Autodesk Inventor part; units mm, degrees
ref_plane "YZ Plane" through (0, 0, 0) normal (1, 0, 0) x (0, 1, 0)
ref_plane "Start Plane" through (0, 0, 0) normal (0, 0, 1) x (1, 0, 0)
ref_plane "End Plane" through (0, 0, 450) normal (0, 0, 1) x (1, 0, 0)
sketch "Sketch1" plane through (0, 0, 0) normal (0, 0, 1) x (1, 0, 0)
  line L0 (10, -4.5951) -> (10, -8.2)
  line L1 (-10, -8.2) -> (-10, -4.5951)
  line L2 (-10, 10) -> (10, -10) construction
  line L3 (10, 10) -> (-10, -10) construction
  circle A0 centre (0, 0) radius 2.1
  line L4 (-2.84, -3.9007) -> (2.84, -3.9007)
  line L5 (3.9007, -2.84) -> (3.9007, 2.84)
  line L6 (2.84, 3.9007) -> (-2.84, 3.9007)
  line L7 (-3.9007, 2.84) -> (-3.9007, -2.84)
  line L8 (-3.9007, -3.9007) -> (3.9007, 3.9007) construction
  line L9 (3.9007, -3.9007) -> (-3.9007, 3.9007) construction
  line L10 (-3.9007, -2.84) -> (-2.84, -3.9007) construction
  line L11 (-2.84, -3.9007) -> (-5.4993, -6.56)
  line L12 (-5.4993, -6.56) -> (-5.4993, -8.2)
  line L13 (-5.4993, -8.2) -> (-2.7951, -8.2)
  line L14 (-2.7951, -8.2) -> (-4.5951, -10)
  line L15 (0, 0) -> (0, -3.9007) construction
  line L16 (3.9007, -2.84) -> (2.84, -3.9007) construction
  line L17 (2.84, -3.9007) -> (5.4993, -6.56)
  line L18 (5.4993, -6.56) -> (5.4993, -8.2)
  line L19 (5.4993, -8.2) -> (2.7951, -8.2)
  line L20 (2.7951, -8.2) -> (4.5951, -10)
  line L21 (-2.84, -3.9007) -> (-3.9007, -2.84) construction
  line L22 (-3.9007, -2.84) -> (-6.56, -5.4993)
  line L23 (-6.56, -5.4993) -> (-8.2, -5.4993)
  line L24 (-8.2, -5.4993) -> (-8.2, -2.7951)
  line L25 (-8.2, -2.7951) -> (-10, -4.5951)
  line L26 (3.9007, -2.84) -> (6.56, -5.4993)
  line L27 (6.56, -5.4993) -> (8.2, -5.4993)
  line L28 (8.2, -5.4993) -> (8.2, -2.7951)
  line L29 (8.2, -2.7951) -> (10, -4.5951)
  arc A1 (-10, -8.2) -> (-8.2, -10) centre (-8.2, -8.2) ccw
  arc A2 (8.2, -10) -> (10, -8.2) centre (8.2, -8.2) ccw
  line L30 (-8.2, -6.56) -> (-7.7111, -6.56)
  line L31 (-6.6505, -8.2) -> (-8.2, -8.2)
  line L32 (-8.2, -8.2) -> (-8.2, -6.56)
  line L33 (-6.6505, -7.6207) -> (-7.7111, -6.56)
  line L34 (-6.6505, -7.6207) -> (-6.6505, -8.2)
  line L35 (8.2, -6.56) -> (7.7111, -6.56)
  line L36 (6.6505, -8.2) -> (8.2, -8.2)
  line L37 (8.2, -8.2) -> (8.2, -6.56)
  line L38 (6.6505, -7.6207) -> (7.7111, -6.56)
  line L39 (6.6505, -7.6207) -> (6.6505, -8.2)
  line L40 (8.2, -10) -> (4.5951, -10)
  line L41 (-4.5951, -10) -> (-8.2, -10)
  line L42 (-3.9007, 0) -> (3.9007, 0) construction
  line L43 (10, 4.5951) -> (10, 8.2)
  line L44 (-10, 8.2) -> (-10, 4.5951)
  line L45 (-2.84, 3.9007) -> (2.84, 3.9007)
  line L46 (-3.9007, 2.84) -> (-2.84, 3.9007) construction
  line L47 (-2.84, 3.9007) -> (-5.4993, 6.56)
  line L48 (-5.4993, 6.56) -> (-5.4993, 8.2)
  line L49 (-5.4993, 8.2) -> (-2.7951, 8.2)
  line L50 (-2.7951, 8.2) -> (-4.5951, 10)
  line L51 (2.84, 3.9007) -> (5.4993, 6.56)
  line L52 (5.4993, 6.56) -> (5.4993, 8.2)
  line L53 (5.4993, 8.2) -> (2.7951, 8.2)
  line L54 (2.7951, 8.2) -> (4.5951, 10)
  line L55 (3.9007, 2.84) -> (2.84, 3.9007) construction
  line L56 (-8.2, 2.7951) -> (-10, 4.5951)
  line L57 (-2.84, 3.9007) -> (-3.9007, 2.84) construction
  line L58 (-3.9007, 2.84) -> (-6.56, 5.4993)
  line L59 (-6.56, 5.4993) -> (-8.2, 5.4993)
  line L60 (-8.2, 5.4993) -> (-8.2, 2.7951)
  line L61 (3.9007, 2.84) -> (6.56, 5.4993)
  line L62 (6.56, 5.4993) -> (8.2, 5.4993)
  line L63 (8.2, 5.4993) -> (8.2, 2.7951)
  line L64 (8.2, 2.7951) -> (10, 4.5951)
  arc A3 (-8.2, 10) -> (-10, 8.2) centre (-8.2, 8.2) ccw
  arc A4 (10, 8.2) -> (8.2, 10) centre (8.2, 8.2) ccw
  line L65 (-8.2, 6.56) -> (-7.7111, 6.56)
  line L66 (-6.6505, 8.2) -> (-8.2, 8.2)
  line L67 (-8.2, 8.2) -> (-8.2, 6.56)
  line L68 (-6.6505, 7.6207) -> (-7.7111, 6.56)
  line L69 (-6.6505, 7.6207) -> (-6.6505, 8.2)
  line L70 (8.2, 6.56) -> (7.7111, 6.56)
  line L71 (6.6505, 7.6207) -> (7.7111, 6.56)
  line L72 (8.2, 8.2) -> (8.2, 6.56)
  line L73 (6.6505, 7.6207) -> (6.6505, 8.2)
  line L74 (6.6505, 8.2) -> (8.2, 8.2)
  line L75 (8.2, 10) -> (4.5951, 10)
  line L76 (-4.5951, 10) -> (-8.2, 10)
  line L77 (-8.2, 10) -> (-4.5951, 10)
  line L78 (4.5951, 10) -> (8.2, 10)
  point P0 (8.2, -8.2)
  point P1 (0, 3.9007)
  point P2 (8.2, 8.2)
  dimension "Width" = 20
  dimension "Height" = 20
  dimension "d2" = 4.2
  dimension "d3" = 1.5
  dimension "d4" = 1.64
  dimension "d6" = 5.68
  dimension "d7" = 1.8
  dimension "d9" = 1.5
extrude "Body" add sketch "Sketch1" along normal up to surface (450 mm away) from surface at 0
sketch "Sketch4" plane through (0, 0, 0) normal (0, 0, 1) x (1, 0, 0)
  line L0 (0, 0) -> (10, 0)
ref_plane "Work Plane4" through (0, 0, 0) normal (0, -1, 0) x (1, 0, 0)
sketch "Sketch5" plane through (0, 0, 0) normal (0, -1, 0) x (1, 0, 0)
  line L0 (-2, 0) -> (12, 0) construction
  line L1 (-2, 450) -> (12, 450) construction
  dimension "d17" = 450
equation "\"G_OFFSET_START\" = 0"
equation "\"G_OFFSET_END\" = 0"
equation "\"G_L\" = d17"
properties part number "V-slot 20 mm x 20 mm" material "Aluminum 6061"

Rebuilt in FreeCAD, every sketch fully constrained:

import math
import FreeCAD as App
import Part
import Sketcher
Q = App.Units.Quantity


def add_polygon(sketch, points):
    """Adds a closed chain of lines whose ends are joined by coincident constraints."""
    first, n = sketch.GeometryCount, len(points)
    for a, b in zip(points, points[1:] + points[:1]):
        sketch.addGeometry(Part.LineSegment(App.Vector(*a, 0), App.Vector(*b, 0)), False)
    for i in range(n):
        sketch.addConstraint(Sketcher.Constraint("Coincident", first + i, 2, first + (i + 1) % n, 1))

doc = App.newDocument("Part")
body = doc.addObject("PartDesign::Body", "Body")

sketch1 = body.newObject("Sketcher::SketchObject", "Sketch")
sketch1.AttachmentSupport = (doc.getObject("XY_Plane"), [""])
sketch1.MapMode = "FlatFace"
sketch1.addGeometry(Part.LineSegment(App.Vector(10, -8.2, 0), App.Vector(10, -4.6, 0)), False)
sketch1.addGeometry(Part.LineSegment(App.Vector(10, -4.6, 0), App.Vector(8.2, -2.8, 0)), False)
sketch1.addGeometry(Part.LineSegment(App.Vector(8.2, -2.8, 0), App.Vector(8.2, -5.5, 0)), False)
sketch1.addGeometry(Part.LineSegment(App.Vector(8.2, -5.5, 0), App.Vector(6.56, -5.5, 0)), False)
sketch1.addGeometry(Part.LineSegment(App.Vector(6.56, -5.5, 0), App.Vector(3.9, -2.84, 0)), False)
sketch1.addGeometry(Part.LineSegment(App.Vector(3.9, -2.84, 0), App.Vector(3.9, 2.84, 0)), False)
sketch1.addGeometry(Part.LineSegment(App.Vector(3.9, 2.84, 0), App.Vector(6.56, 5.5, 0)), False)
sketch1.addGeometry(Part.LineSegment(App.Vector(6.56, 5.5, 0), App.Vector(8.2, 5.5, 0)), False)
sketch1.addGeometry(Part.LineSegment(App.Vector(8.2, 5.5, 0), App.Vector(8.2, 2.8, 0)), False)
sketch1.addGeometry(Part.LineSegment(App.Vector(8.2, 2.8, 0), App.Vector(10, 4.6, 0)), False)
sketch1.addGeometry(Part.LineSegment(App.Vector(10, 4.6, 0), App.Vector(10, 8.2, 0)), False)
sketch1.addGeometry(Part.ArcOfCircle(Part.Circle(App.Vector(8.2, 8.2, 0), App.Vector(0, 0, 1), 1.8), math.radians(0), math.radians(90)), False)
sketch1.addGeometry(Part.LineSegment(App.Vector(8.2, 10, 0), App.Vector(4.6, 10, 0)), False)
sketch1.addGeometry(Part.LineSegment(App.Vector(4.6, 10, 0), App.Vector(2.8, 8.2, 0)), False)
sketch1.addGeometry(Part.LineSegment(App.Vector(2.8, 8.2, 0), App.Vector(5.5, 8.2, 0)), False)
sketch1.addGeometry(Part.LineSegment(App.Vector(5.5, 8.2, 0), App.Vector(5.5, 6.56, 0)), False)
sketch1.addGeometry(Part.LineSegment(App.Vector(5.5, 6.56, 0), App.Vector(2.84, 3.9, 0)), False)
sketch1.addGeometry(Part.LineSegment(App.Vector(2.84, 3.9, 0), App.Vector(-2.84, 3.9, 0)), False)
sketch1.addGeometry(Part.LineSegment(App.Vector(-2.84, 3.9, 0), App.Vector(-5.5, 6.56, 0)), False)
sketch1.addGeometry(Part.LineSegment(App.Vector(-5.5, 6.56, 0), App.Vector(-5.5, 8.2, 0)), False)
sketch1.addGeometry(Part.LineSegment(App.Vector(-5.5, 8.2, 0), App.Vector(-2.8, 8.2, 0)), False)
sketch1.addGeometry(Part.LineSegment(App.Vector(-2.8, 8.2, 0), App.Vector(-4.6, 10, 0)), False)
sketch1.addGeometry(Part.LineSegment(App.Vector(-4.6, 10, 0), App.Vector(-8.2, 10, 0)), False)
sketch1.addGeometry(Part.ArcOfCircle(Part.Circle(App.Vector(-8.2, 8.2, 0), App.Vector(0, 0, 1), 1.8), math.radians(90), math.radians(180)), False)
sketch1.addGeometry(Part.LineSegment(App.Vector(-10, 8.2, 0), App.Vector(-10, 4.6, 0)), False)
sketch1.addGeometry(Part.LineSegment(App.Vector(-10, 4.6, 0), App.Vector(-8.2, 2.8, 0)), False)
sketch1.addGeometry(Part.LineSegment(App.Vector(-8.2, 2.8, 0), App.Vector(-8.2, 5.5, 0)), False)
sketch1.addGeometry(Part.LineSegment(App.Vector(-8.2, 5.5, 0), App.Vector(-6.56, 5.5, 0)), False)
sketch1.addGeometry(Part.LineSegment(App.Vector(-6.56, 5.5, 0), App.Vector(-3.9, 2.84, 0)), False)
sketch1.addGeometry(Part.LineSegment(App.Vector(-3.9, 2.84, 0), App.Vector(-3.9, -2.84, 0)), False)
sketch1.addGeometry(Part.LineSegment(App.Vector(-3.9, -2.84, 0), App.Vector(-6.56, -5.5, 0)), False)
sketch1.addGeometry(Part.LineSegment(App.Vector(-6.56, -5.5, 0), App.Vector(-8.2, -5.5, 0)), False)
sketch1.addGeometry(Part.LineSegment(App.Vector(-8.2, -5.5, 0), App.Vector(-8.2, -2.8, 0)), False)
sketch1.addGeometry(Part.LineSegment(App.Vector(-8.2, -2.8, 0), App.Vector(-10, -4.6, 0)), False)
sketch1.addGeometry(Part.LineSegment(App.Vector(-10, -4.6, 0), App.Vector(-10, -8.2, 0)), False)
sketch1.addGeometry(Part.ArcOfCircle(Part.Circle(App.Vector(-8.2, -8.2, 0), App.Vector(0, 0, 1), 1.8), math.radians(180), math.radians(270)), False)
sketch1.addGeometry(Part.LineSegment(App.Vector(-8.2, -10, 0), App.Vector(-4.6, -10, 0)), False)
sketch1.addGeometry(Part.LineSegment(App.Vector(-4.6, -10, 0), App.Vector(-2.8, -8.2, 0)), False)
sketch1.addGeometry(Part.LineSegment(App.Vector(-2.8, -8.2, 0), App.Vector(-5.5, -8.2, 0)), False)
sketch1.addGeometry(Part.LineSegment(App.Vector(-5.5, -8.2, 0), App.Vector(-5.5, -6.56, 0)), False)
sketch1.addGeometry(Part.LineSegment(App.Vector(-5.5, -6.56, 0), App.Vector(-2.84, -3.9, 0)), False)
sketch1.addGeometry(Part.LineSegment(App.Vector(-2.84, -3.9, 0), App.Vector(2.84, -3.9, 0)), False)
sketch1.addGeometry(Part.LineSegment(App.Vector(2.84, -3.9, 0), App.Vector(5.5, -6.56, 0)), False)
sketch1.addGeometry(Part.LineSegment(App.Vector(5.5, -6.56, 0), App.Vector(5.5, -8.2, 0)), False)
sketch1.addGeometry(Part.LineSegment(App.Vector(5.5, -8.2, 0), App.Vector(2.8, -8.2, 0)), False)
sketch1.addGeometry(Part.LineSegment(App.Vector(2.8, -8.2, 0), App.Vector(4.6, -10, 0)), False)
sketch1.addGeometry(Part.LineSegment(App.Vector(4.6, -10, 0), App.Vector(8.2, -10, 0)), False)
sketch1.addGeometry(Part.ArcOfCircle(Part.Circle(App.Vector(8.2, -8.2, 0), App.Vector(0, 0, 1), 1.8), math.radians(-90), math.radians(0)), False)
add_polygon(sketch1, [(-8.2, -8.2), (-8.2, -6.56), (-7.71, -6.56), (-6.65, -7.62), (-6.65, -8.2)])
add_polygon(sketch1, [(7.71, -6.56), (8.2, -6.56), (8.2, -8.2), (6.65, -8.2), (6.65, -7.62)])
add_polygon(sketch1, [(-7.71, 6.56), (-8.2, 6.56), (-8.2, 8.2), (-6.65, 8.2), (-6.65, 7.62)])
sketch1.addGeometry(Part.Circle(App.Vector(0, 0, 0), App.Vector(0, 0, 1), 2.1), False)
add_polygon(sketch1, [(8.2, 8.2), (8.2, 6.56), (7.71, 6.56), (6.65, 7.62), (6.65, 8.2)])
sketch1.addConstraint([
    Sketcher.Constraint("Coincident", 0, 2, 1, 1),
    Sketcher.Constraint("Coincident", 1, 2, 2, 1),
    Sketcher.Constraint("Coincident", 2, 2, 3, 1),
    Sketcher.Constraint("Coincident", 3, 2, 4, 1),
    Sketcher.Constraint("Coincident", 4, 2, 5, 1),
    Sketcher.Constraint("Coincident", 5, 2, 6, 1),
    Sketcher.Constraint("Coincident", 6, 2, 7, 1),
    Sketcher.Constraint("Coincident", 7, 2, 8, 1),
    Sketcher.Constraint("Coincident", 8, 2, 9, 1),
    Sketcher.Constraint("Coincident", 9, 2, 10, 1),
    Sketcher.Constraint("Tangent", 10, 2, 11, 1),
    Sketcher.Constraint("Tangent", 11, 2, 12, 1),
    Sketcher.Constraint("Coincident", 12, 2, 13, 1),
    Sketcher.Constraint("Coincident", 13, 2, 14, 1),
    Sketcher.Constraint("Coincident", 14, 2, 15, 1),
    Sketcher.Constraint("Coincident", 15, 2, 16, 1),
    Sketcher.Constraint("Coincident", 16, 2, 17, 1),
    Sketcher.Constraint("Coincident", 17, 2, 18, 1),
    Sketcher.Constraint("Coincident", 18, 2, 19, 1),
    Sketcher.Constraint("Coincident", 19, 2, 20, 1),
    Sketcher.Constraint("Coincident", 20, 2, 21, 1),
    Sketcher.Constraint("Coincident", 21, 2, 22, 1),
    Sketcher.Constraint("Tangent", 22, 2, 23, 1),
    Sketcher.Constraint("Tangent", 23, 2, 24, 1),
    Sketcher.Constraint("Coincident", 24, 2, 25, 1),
    Sketcher.Constraint("Coincident", 25, 2, 26, 1),
    Sketcher.Constraint("Coincident", 26, 2, 27, 1),
    Sketcher.Constraint("Coincident", 27, 2, 28, 1),
    Sketcher.Constraint("Coincident", 28, 2, 29, 1),
    Sketcher.Constraint("Coincident", 29, 2, 30, 1),
    Sketcher.Constraint("Coincident", 30, 2, 31, 1),
    Sketcher.Constraint("Coincident", 31, 2, 32, 1),
    Sketcher.Constraint("Coincident", 32, 2, 33, 1),
    Sketcher.Constraint("Coincident", 33, 2, 34, 1),
    Sketcher.Constraint("Tangent", 34, 2, 35, 1),
    Sketcher.Constraint("Tangent", 35, 2, 36, 1),
    Sketcher.Constraint("Coincident", 36, 2, 37, 1),
    Sketcher.Constraint("Coincident", 37, 2, 38, 1),
    Sketcher.Constraint("Coincident", 38, 2, 39, 1),
    Sketcher.Constraint("Coincident", 39, 2, 40, 1),
    Sketcher.Constraint("Coincident", 40, 2, 41, 1),
    Sketcher.Constraint("Coincident", 41, 2, 42, 1),
    Sketcher.Constraint("Coincident", 42, 2, 43, 1),
    Sketcher.Constraint("Coincident", 43, 2, 44, 1),
    Sketcher.Constraint("Coincident", 44, 2, 45, 1),
    Sketcher.Constraint("Coincident", 45, 2, 46, 1),
    Sketcher.Constraint("Tangent", 46, 2, 47, 1),
    Sketcher.Constraint("Tangent", 47, 2, 0, 1),
    Sketcher.Constraint("Vertical", 0),
    Sketcher.Constraint("Vertical", 2),
    Sketcher.Constraint("Horizontal", 3),
    Sketcher.Constraint("Vertical", 5),
    Sketcher.Constraint("Horizontal", 7),
    Sketcher.Constraint("Vertical", 8),
    Sketcher.Constraint("Vertical", 10),
    Sketcher.Constraint("Horizontal", 12),
    Sketcher.Constraint("Horizontal", 14),
    Sketcher.Constraint("Vertical", 15),
    Sketcher.Constraint("Horizontal", 17),
    Sketcher.Constraint("Vertical", 19),
    Sketcher.Constraint("Horizontal", 20),
    Sketcher.Constraint("Horizontal", 22),
    Sketcher.Constraint("Vertical", 24),
    Sketcher.Constraint("Vertical", 26),
    Sketcher.Constraint("Horizontal", 27),
    Sketcher.Constraint("Vertical", 29),
    Sketcher.Constraint("Horizontal", 31),
    Sketcher.Constraint("Vertical", 32),
    Sketcher.Constraint("Vertical", 34),
    Sketcher.Constraint("Horizontal", 36),
    Sketcher.Constraint("Horizontal", 38),
    Sketcher.Constraint("Vertical", 39),
    Sketcher.Constraint("Horizontal", 41),
    Sketcher.Constraint("Vertical", 43),
    Sketcher.Constraint("Horizontal", 44),
    Sketcher.Constraint("Horizontal", 46),
    Sketcher.Constraint("Vertical", 48),
    Sketcher.Constraint("Horizontal", 49),
    Sketcher.Constraint("Vertical", 51),
    Sketcher.Constraint("Horizontal", 52),
    Sketcher.Constraint("Horizontal", 53),
    Sketcher.Constraint("Vertical", 54),
    Sketcher.Constraint("Horizontal", 55),
    Sketcher.Constraint("Vertical", 56),
    Sketcher.Constraint("Horizontal", 58),
    Sketcher.Constraint("Vertical", 59),
    Sketcher.Constraint("Horizontal", 60),
    Sketcher.Constraint("Vertical", 61),
    Sketcher.Constraint("Vertical", 64),
    Sketcher.Constraint("Horizontal", 65),
    Sketcher.Constraint("Vertical", 67),
    Sketcher.Constraint("Horizontal", 68),
    Sketcher.Constraint("Coincident", 63, 3, -1, 1),
    Sketcher.Constraint("Coincident", 52, 2, 35, 3),
    Sketcher.Constraint("Coincident", 54, 2, 47, 3),
    Sketcher.Constraint("Coincident", 59, 2, 23, 3),
    Sketcher.Constraint("Coincident", 68, 2, 11, 3),
    Sketcher.Constraint("Equal", 11, 23),
    Sketcher.Constraint("Equal", 23, 35),
    Sketcher.Constraint("Equal", 35, 47),
    Sketcher.Constraint("Symmetric", 11, 3, 35, 3, -1, 1),
    Sketcher.Constraint("Symmetric", 23, 3, 47, 3, -1, 1),
    Sketcher.Constraint("Symmetric", 1, 2, 25, 2, -1, 1),
    Sketcher.Constraint("Symmetric", 3, 2, 27, 2, -1, 1),
    Sketcher.Constraint("Symmetric", 4, 2, 28, 2, -1, 1),
    Sketcher.Constraint("Symmetric", 6, 2, 30, 2, -1, 1),
    Sketcher.Constraint("Symmetric", 8, 2, 32, 2, -1, 1),
    Sketcher.Constraint("Symmetric", 13, 2, 37, 2, -1, 1),
    Sketcher.Constraint("Symmetric", 15, 2, 39, 2, -1, 1),
    Sketcher.Constraint("Symmetric", 16, 2, 40, 2, -1, 1),
    Sketcher.Constraint("Symmetric", 18, 2, 42, 2, -1, 1),
    Sketcher.Constraint("Symmetric", 20, 2, 44, 2, -1, 1),
    Sketcher.Constraint("Symmetric", 56, 2, 61, 2, -1, 1),
    Sketcher.Constraint("Symmetric", 57, 2, 62, 2, -1, 1),
    Sketcher.Constraint("Symmetric", 49, 2, 65, 2, -1, 1),
    Sketcher.Constraint("Symmetric", 50, 2, 66, 2, -1, 1),
    Sketcher.Constraint("Symmetric", 11, 3, 23, 3, -2),
    Sketcher.Constraint("Symmetric", 15, 2, 18, 2, -2),
    Sketcher.Constraint("Symmetric", 13, 2, 20, 2, -2),
    Sketcher.Constraint("Symmetric", 8, 2, 25, 2, -2),
    Sketcher.Constraint("Symmetric", 6, 2, 27, 2, -2),
    Sketcher.Constraint("Symmetric", 50, 2, 56, 2, -2),
    Sketcher.Constraint("Symmetric", 49, 2, 57, 2, -2),
    Sketcher.Constraint("Parallel", 1, 4),
    Sketcher.Constraint("Perpendicular", 4, 6),
    Sketcher.Constraint("Parallel", 6, 9),
    Sketcher.Constraint("Parallel", 9, 13),
    Sketcher.Constraint("Parallel", 13, 16),
    Sketcher.Constraint("Perpendicular", 16, 18),
    Sketcher.Constraint("Parallel", 18, 21),
    Sketcher.Constraint("Parallel", 21, 25),
    Sketcher.Constraint("Perpendicular", 28, 30),
    Sketcher.Constraint("Parallel", 30, 33),
    Sketcher.Constraint("Parallel", 33, 37),
    Sketcher.Constraint("Perpendicular", 40, 42),
    Sketcher.Constraint("Parallel", 42, 45),
    Sketcher.Constraint("Parallel", 45, 50),
    Sketcher.Constraint("Perpendicular", 50, 57),
    Sketcher.Constraint("Horizontal", 10, 2, 13, 2),
    Sketcher.Constraint("Horizontal", 42, 2, 48, 2),
    Sketcher.Constraint("Vertical", 47, 3, 1, 2),
    Sketcher.Constraint("Equal", 46, 0),
    Sketcher.Constraint("Equal", 44, 2),
    Sketcher.Constraint("Equal", 41, 5),
    Sketcher.Constraint("Equal", 31, 15),
    Sketcher.Constraint("Equal", 6, 16),
    Sketcher.Constraint("Diameter", 63, Q("4.2 mm")),
    Sketcher.Constraint("Radius", 11, Q("1.8 mm")),
    Sketcher.Constraint("Distance", 50, Q("1.5 mm")),
    Sketcher.Constraint("DistanceX", 3, 2, 3, 1, Q("1.64 mm")),
    Sketcher.Constraint("DistanceX", 17, 2, 17, 1, Q("5.68 mm")),
    Sketcher.Constraint("DistanceX", -1, 1, 0, 2, Q("10 mm")),
    Sketcher.Constraint("DistanceX", 12, 2, 12, 1, Q("3.605 mm")),
    Sketcher.Constraint("DistanceX", 49, 1, 49, 2, Q("0.489 mm")),
    Sketcher.Constraint("DistanceX", 14, 1, 14, 2, Q("2.7042 mm")),
])
pad1 = body.newObject("PartDesign::Pad", "Pad")
pad1.Profile = sketch1
pad1.Length = 450

doc.recompute()
